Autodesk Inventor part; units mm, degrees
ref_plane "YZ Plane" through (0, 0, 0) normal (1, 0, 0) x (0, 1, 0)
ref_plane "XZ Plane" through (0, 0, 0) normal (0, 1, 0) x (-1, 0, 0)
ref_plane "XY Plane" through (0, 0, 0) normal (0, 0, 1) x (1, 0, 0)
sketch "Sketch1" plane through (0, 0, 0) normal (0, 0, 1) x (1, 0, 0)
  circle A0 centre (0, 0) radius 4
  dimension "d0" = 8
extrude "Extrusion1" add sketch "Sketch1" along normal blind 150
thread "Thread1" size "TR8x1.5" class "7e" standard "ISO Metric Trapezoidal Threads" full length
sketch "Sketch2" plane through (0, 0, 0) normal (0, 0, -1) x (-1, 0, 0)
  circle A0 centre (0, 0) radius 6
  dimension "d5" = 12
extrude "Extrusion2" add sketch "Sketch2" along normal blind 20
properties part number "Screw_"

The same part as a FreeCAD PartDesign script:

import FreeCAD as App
import Part
import Sketcher
from FreeCAD import Vector

doc = App.newDocument("Part")
body = doc.addObject("PartDesign::Body", "Body")

sketch1 = doc.addObject("Sketcher::SketchObject", "Sketch")
body.addObject(sketch1)
sketch1.AttachmentSupport = (doc.XY_Plane, [""])
sketch1.MapMode = "FlatFace"
sketch1.addGeometry(Part.Circle(Vector(0, 0, 0), Vector(0, 0, 1), 4), False)
sketch1.addConstraint(Sketcher.Constraint("Coincident", 0, 3, -1, 1))
sketch1.addConstraint(Sketcher.Constraint("Diameter", 0, 8.0))
pad1 = doc.addObject("PartDesign::Pad", "Pad")
body.addObject(pad1)
pad1.Profile = sketch1
pad1.Length = 150

sketch2 = doc.addObject("Sketcher::SketchObject", "Sketch001")
body.addObject(sketch2)
sketch2.AttachmentSupport = (doc.XY_Plane, [""])
sketch2.MapMode = "FlatFace"
sketch2.addGeometry(Part.Circle(Vector(0, 0, 0), Vector(0, 0, 1), 6), False)
sketch2.addConstraint(Sketcher.Constraint("Coincident", 0, 3, -1, 1))
sketch2.addConstraint(Sketcher.Constraint("Diameter", 0, 12.0))
pad2 = doc.addObject("PartDesign::Pad", "Pad001")
body.addObject(pad2)
pad2.Profile = sketch2
pad2.Length = 20
pad2.Reversed = True

doc.recompute()
